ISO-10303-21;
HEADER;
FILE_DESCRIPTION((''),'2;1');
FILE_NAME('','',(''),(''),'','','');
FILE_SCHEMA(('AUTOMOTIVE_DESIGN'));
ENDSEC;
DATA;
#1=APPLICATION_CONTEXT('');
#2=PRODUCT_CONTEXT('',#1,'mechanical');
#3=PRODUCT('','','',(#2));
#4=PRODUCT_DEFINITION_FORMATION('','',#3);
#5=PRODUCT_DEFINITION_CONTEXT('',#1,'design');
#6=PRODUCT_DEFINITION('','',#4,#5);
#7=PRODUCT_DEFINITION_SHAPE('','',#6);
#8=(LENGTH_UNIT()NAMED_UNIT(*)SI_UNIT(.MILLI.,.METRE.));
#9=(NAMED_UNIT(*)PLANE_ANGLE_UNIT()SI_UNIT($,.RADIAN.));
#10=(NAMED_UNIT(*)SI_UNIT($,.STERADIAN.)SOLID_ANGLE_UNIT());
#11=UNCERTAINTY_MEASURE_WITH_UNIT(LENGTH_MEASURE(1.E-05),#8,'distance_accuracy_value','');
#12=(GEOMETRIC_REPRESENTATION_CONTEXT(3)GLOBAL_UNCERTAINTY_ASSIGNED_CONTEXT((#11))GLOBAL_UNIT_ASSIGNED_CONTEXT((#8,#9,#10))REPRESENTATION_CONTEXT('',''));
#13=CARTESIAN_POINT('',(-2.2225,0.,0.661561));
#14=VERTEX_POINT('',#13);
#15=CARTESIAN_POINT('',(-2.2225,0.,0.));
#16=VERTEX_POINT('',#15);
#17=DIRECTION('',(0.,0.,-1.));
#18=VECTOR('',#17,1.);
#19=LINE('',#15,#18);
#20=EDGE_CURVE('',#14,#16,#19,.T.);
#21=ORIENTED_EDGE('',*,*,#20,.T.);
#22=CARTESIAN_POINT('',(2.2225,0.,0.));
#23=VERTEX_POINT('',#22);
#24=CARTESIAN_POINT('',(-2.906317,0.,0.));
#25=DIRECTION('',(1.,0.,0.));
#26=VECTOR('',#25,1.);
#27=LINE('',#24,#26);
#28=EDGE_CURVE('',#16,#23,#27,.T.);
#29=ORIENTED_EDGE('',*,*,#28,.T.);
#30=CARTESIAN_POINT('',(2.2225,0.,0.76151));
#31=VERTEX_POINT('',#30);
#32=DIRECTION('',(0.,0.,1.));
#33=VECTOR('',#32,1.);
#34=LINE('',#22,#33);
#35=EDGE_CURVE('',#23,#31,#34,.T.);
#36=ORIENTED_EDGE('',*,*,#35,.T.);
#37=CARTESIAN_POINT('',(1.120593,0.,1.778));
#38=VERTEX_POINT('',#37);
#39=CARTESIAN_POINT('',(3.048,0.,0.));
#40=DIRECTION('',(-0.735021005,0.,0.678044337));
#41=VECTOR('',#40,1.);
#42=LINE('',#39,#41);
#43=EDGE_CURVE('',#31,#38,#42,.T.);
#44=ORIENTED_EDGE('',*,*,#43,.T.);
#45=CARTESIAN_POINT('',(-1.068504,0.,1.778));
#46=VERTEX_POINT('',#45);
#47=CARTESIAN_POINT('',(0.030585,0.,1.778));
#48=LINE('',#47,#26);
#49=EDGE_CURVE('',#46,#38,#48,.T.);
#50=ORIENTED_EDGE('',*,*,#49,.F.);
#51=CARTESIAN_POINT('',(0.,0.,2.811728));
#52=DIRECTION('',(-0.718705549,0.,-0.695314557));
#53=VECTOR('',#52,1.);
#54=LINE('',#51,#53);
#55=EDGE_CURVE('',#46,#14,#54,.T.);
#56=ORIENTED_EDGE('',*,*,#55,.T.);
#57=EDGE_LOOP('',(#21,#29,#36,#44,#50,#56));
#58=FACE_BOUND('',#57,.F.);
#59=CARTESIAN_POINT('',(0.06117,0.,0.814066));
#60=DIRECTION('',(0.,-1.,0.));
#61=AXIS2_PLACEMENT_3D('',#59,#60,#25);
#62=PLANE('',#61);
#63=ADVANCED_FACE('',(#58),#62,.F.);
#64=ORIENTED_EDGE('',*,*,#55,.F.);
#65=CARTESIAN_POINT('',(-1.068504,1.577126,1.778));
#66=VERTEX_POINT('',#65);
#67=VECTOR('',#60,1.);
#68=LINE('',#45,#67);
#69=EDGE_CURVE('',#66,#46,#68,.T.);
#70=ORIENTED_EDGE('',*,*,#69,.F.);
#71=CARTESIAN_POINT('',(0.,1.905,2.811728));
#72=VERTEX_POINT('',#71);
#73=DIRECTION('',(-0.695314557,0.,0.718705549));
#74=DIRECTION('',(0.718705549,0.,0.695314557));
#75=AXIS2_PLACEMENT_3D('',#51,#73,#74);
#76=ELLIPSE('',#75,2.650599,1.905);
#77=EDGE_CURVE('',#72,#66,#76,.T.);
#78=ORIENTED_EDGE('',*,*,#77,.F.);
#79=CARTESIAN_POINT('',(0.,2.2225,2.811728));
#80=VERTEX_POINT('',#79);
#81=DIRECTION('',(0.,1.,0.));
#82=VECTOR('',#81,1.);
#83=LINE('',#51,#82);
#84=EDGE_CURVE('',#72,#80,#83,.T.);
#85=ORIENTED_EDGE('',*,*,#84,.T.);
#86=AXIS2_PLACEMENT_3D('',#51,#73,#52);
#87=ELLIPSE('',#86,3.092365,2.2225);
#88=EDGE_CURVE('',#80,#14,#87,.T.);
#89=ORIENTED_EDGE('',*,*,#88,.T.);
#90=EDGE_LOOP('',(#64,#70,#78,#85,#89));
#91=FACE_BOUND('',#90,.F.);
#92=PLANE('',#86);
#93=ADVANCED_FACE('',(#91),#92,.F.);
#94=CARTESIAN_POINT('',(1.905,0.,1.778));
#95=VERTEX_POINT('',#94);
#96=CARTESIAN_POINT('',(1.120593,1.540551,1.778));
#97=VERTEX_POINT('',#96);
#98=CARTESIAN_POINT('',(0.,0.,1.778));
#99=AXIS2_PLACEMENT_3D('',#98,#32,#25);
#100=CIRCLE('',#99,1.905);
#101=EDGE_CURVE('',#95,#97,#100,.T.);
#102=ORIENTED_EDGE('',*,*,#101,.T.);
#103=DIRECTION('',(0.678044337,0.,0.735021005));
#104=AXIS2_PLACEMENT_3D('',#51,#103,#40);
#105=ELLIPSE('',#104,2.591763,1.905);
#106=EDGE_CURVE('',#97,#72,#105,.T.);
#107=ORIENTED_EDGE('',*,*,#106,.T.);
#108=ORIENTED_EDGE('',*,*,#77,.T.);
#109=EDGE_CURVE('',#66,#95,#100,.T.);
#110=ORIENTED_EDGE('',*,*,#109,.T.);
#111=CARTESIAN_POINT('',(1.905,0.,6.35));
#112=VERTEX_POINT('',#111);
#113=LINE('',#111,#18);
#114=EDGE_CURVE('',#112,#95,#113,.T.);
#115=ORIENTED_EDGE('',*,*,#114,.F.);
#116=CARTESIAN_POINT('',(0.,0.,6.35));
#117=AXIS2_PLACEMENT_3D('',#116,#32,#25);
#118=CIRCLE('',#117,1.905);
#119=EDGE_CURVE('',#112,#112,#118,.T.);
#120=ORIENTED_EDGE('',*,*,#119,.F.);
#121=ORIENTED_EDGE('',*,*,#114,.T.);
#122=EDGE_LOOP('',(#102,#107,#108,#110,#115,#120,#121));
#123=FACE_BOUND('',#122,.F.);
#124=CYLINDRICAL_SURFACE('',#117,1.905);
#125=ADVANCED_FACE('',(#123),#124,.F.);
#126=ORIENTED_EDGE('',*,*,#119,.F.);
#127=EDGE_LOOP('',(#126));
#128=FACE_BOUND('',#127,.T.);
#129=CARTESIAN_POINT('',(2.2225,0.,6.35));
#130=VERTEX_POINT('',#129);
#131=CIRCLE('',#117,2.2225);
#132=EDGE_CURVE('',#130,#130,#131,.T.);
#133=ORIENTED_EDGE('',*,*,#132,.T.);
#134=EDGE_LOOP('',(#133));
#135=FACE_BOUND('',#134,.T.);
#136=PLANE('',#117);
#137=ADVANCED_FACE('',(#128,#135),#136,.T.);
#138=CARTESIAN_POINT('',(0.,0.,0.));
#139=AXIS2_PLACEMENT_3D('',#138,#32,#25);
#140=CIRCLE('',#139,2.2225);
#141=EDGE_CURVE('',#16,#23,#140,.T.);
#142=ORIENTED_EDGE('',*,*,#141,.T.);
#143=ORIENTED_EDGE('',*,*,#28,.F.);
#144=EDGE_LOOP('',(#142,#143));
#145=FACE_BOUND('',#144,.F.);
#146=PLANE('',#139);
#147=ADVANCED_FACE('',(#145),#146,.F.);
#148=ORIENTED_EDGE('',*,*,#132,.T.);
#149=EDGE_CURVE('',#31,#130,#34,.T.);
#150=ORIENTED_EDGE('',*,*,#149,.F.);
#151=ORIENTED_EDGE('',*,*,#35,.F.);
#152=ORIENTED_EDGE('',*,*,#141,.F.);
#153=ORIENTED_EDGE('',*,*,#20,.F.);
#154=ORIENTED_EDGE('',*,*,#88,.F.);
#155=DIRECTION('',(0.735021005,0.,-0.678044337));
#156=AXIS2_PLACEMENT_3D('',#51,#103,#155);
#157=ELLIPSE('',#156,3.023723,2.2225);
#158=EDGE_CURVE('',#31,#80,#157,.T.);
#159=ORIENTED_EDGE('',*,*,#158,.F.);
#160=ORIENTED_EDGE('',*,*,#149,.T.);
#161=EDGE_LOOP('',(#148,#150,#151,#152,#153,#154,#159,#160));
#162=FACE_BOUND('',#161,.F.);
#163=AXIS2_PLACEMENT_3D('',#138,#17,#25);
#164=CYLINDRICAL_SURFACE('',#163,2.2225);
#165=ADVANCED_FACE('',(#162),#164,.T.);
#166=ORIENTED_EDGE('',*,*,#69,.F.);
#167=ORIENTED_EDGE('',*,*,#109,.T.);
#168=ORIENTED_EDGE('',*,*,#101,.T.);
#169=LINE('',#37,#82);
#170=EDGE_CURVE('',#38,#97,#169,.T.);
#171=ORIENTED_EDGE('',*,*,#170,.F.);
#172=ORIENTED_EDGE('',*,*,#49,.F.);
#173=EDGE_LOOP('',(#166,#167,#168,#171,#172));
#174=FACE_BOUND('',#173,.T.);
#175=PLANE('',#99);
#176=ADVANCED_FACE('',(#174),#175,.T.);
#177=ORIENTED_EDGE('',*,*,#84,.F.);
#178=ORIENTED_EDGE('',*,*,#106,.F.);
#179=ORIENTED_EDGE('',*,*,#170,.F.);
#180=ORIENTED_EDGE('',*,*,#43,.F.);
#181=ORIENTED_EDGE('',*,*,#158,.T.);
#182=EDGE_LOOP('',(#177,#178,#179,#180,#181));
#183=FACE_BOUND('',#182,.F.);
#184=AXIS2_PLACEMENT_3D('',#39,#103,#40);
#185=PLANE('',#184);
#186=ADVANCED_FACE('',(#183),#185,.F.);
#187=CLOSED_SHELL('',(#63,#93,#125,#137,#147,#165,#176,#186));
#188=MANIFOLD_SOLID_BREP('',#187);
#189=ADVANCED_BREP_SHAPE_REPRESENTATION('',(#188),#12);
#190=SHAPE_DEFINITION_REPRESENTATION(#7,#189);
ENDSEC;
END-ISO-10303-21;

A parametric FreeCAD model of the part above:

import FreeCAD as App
import Part
import Sketcher

V = App.Vector
Q = App.Units.Quantity

doc = App.newDocument("Part")
body = doc.addObject("PartDesign::Body", "Body")

# Sketch on XY plane
sketch1 = body.newObject("Sketcher::SketchObject", "Sketch")
sketch1.AttachmentSupport = (doc.getObject("XY_Plane"), [""])
sketch1.MapMode = "FlatFace"
sketch1.addGeometry(Part.Circle(V(0, 0, 0), V(0, 0, 1), 2.2), False)
sketch1.addConstraint([
    Sketcher.Constraint("Coincident", 0, 3, -1, 1),
    Sketcher.Constraint("Diameter", 0, Q("0.175 in")),
])
pad1 = body.newObject("PartDesign::Pad", "Pad")
pad1.Profile = sketch1
pad1.Length = Q("0.25 in")

# Sketch on XY plane
sketch2 = body.newObject("Sketcher::SketchObject", "Sketch001")
sketch2.AttachmentSupport = (doc.getObject("XY_Plane"), [""])
sketch2.MapMode = "FlatFace"
sketch2.AttachmentOffset = App.Placement(V(0, 0, 0.25 * 25.4), App.Rotation())
sketch2.addGeometry(Part.Circle(V(0, 0, 0), V(0, 0, 1), 1.9), False)
sketch2.addConstraint([
    Sketcher.Constraint("Coincident", 0, 3, -1, 1),
    Sketcher.Constraint("Diameter", 0, Q("0.15 in")),
])
pocket1 = body.newObject("PartDesign::Pocket", "Pocket")
pocket1.Profile = sketch2
pocket1.Length = Q("0.18 in")

# Sketch on XZ plane
sketch3 = body.newObject("Sketcher::SketchObject", "Sketch002")
sketch3.AttachmentSupport = (doc.getObject("XZ_Plane"), [""])
sketch3.MapMode = "FlatFace"
sketch3.addGeometry([
    Part.LineSegment(V(0, 2.8, 0), V(-2.9, 0, 0)),
    Part.LineSegment(V(-2.9, 0, 0), V(3, 0, 0)),
    Part.LineSegment(V(3, 0, 0), V(0, 2.8, 0)),
], False)
sketch3.addConstraint([
    Sketcher.Constraint("Coincident", 0, 2, 1, 1),
    Sketcher.Constraint("Coincident", 1, 2, 2, 1),
    Sketcher.Constraint("Coincident", 2, 2, 0, 1),
    Sketcher.Constraint("Horizontal", 1),
    Sketcher.Constraint("PointOnObject", 0, 2, -1),
    Sketcher.Constraint("PointOnObject", 2, 2, -2),
    Sketcher.Constraint("DistanceX", -1, 1, 1, 2, Q("0.12 in")),
    Sketcher.Constraint("Distance", 0, Q("4.043822 mm")),
    Sketcher.Constraint("Distance", 2, Q("4.14682 mm")),
])
pocket2 = body.newObject("PartDesign::Pocket", "Pocket001")
pocket2.Profile = sketch3
pocket2.Type = "ThroughAll"

doc.recompute()
